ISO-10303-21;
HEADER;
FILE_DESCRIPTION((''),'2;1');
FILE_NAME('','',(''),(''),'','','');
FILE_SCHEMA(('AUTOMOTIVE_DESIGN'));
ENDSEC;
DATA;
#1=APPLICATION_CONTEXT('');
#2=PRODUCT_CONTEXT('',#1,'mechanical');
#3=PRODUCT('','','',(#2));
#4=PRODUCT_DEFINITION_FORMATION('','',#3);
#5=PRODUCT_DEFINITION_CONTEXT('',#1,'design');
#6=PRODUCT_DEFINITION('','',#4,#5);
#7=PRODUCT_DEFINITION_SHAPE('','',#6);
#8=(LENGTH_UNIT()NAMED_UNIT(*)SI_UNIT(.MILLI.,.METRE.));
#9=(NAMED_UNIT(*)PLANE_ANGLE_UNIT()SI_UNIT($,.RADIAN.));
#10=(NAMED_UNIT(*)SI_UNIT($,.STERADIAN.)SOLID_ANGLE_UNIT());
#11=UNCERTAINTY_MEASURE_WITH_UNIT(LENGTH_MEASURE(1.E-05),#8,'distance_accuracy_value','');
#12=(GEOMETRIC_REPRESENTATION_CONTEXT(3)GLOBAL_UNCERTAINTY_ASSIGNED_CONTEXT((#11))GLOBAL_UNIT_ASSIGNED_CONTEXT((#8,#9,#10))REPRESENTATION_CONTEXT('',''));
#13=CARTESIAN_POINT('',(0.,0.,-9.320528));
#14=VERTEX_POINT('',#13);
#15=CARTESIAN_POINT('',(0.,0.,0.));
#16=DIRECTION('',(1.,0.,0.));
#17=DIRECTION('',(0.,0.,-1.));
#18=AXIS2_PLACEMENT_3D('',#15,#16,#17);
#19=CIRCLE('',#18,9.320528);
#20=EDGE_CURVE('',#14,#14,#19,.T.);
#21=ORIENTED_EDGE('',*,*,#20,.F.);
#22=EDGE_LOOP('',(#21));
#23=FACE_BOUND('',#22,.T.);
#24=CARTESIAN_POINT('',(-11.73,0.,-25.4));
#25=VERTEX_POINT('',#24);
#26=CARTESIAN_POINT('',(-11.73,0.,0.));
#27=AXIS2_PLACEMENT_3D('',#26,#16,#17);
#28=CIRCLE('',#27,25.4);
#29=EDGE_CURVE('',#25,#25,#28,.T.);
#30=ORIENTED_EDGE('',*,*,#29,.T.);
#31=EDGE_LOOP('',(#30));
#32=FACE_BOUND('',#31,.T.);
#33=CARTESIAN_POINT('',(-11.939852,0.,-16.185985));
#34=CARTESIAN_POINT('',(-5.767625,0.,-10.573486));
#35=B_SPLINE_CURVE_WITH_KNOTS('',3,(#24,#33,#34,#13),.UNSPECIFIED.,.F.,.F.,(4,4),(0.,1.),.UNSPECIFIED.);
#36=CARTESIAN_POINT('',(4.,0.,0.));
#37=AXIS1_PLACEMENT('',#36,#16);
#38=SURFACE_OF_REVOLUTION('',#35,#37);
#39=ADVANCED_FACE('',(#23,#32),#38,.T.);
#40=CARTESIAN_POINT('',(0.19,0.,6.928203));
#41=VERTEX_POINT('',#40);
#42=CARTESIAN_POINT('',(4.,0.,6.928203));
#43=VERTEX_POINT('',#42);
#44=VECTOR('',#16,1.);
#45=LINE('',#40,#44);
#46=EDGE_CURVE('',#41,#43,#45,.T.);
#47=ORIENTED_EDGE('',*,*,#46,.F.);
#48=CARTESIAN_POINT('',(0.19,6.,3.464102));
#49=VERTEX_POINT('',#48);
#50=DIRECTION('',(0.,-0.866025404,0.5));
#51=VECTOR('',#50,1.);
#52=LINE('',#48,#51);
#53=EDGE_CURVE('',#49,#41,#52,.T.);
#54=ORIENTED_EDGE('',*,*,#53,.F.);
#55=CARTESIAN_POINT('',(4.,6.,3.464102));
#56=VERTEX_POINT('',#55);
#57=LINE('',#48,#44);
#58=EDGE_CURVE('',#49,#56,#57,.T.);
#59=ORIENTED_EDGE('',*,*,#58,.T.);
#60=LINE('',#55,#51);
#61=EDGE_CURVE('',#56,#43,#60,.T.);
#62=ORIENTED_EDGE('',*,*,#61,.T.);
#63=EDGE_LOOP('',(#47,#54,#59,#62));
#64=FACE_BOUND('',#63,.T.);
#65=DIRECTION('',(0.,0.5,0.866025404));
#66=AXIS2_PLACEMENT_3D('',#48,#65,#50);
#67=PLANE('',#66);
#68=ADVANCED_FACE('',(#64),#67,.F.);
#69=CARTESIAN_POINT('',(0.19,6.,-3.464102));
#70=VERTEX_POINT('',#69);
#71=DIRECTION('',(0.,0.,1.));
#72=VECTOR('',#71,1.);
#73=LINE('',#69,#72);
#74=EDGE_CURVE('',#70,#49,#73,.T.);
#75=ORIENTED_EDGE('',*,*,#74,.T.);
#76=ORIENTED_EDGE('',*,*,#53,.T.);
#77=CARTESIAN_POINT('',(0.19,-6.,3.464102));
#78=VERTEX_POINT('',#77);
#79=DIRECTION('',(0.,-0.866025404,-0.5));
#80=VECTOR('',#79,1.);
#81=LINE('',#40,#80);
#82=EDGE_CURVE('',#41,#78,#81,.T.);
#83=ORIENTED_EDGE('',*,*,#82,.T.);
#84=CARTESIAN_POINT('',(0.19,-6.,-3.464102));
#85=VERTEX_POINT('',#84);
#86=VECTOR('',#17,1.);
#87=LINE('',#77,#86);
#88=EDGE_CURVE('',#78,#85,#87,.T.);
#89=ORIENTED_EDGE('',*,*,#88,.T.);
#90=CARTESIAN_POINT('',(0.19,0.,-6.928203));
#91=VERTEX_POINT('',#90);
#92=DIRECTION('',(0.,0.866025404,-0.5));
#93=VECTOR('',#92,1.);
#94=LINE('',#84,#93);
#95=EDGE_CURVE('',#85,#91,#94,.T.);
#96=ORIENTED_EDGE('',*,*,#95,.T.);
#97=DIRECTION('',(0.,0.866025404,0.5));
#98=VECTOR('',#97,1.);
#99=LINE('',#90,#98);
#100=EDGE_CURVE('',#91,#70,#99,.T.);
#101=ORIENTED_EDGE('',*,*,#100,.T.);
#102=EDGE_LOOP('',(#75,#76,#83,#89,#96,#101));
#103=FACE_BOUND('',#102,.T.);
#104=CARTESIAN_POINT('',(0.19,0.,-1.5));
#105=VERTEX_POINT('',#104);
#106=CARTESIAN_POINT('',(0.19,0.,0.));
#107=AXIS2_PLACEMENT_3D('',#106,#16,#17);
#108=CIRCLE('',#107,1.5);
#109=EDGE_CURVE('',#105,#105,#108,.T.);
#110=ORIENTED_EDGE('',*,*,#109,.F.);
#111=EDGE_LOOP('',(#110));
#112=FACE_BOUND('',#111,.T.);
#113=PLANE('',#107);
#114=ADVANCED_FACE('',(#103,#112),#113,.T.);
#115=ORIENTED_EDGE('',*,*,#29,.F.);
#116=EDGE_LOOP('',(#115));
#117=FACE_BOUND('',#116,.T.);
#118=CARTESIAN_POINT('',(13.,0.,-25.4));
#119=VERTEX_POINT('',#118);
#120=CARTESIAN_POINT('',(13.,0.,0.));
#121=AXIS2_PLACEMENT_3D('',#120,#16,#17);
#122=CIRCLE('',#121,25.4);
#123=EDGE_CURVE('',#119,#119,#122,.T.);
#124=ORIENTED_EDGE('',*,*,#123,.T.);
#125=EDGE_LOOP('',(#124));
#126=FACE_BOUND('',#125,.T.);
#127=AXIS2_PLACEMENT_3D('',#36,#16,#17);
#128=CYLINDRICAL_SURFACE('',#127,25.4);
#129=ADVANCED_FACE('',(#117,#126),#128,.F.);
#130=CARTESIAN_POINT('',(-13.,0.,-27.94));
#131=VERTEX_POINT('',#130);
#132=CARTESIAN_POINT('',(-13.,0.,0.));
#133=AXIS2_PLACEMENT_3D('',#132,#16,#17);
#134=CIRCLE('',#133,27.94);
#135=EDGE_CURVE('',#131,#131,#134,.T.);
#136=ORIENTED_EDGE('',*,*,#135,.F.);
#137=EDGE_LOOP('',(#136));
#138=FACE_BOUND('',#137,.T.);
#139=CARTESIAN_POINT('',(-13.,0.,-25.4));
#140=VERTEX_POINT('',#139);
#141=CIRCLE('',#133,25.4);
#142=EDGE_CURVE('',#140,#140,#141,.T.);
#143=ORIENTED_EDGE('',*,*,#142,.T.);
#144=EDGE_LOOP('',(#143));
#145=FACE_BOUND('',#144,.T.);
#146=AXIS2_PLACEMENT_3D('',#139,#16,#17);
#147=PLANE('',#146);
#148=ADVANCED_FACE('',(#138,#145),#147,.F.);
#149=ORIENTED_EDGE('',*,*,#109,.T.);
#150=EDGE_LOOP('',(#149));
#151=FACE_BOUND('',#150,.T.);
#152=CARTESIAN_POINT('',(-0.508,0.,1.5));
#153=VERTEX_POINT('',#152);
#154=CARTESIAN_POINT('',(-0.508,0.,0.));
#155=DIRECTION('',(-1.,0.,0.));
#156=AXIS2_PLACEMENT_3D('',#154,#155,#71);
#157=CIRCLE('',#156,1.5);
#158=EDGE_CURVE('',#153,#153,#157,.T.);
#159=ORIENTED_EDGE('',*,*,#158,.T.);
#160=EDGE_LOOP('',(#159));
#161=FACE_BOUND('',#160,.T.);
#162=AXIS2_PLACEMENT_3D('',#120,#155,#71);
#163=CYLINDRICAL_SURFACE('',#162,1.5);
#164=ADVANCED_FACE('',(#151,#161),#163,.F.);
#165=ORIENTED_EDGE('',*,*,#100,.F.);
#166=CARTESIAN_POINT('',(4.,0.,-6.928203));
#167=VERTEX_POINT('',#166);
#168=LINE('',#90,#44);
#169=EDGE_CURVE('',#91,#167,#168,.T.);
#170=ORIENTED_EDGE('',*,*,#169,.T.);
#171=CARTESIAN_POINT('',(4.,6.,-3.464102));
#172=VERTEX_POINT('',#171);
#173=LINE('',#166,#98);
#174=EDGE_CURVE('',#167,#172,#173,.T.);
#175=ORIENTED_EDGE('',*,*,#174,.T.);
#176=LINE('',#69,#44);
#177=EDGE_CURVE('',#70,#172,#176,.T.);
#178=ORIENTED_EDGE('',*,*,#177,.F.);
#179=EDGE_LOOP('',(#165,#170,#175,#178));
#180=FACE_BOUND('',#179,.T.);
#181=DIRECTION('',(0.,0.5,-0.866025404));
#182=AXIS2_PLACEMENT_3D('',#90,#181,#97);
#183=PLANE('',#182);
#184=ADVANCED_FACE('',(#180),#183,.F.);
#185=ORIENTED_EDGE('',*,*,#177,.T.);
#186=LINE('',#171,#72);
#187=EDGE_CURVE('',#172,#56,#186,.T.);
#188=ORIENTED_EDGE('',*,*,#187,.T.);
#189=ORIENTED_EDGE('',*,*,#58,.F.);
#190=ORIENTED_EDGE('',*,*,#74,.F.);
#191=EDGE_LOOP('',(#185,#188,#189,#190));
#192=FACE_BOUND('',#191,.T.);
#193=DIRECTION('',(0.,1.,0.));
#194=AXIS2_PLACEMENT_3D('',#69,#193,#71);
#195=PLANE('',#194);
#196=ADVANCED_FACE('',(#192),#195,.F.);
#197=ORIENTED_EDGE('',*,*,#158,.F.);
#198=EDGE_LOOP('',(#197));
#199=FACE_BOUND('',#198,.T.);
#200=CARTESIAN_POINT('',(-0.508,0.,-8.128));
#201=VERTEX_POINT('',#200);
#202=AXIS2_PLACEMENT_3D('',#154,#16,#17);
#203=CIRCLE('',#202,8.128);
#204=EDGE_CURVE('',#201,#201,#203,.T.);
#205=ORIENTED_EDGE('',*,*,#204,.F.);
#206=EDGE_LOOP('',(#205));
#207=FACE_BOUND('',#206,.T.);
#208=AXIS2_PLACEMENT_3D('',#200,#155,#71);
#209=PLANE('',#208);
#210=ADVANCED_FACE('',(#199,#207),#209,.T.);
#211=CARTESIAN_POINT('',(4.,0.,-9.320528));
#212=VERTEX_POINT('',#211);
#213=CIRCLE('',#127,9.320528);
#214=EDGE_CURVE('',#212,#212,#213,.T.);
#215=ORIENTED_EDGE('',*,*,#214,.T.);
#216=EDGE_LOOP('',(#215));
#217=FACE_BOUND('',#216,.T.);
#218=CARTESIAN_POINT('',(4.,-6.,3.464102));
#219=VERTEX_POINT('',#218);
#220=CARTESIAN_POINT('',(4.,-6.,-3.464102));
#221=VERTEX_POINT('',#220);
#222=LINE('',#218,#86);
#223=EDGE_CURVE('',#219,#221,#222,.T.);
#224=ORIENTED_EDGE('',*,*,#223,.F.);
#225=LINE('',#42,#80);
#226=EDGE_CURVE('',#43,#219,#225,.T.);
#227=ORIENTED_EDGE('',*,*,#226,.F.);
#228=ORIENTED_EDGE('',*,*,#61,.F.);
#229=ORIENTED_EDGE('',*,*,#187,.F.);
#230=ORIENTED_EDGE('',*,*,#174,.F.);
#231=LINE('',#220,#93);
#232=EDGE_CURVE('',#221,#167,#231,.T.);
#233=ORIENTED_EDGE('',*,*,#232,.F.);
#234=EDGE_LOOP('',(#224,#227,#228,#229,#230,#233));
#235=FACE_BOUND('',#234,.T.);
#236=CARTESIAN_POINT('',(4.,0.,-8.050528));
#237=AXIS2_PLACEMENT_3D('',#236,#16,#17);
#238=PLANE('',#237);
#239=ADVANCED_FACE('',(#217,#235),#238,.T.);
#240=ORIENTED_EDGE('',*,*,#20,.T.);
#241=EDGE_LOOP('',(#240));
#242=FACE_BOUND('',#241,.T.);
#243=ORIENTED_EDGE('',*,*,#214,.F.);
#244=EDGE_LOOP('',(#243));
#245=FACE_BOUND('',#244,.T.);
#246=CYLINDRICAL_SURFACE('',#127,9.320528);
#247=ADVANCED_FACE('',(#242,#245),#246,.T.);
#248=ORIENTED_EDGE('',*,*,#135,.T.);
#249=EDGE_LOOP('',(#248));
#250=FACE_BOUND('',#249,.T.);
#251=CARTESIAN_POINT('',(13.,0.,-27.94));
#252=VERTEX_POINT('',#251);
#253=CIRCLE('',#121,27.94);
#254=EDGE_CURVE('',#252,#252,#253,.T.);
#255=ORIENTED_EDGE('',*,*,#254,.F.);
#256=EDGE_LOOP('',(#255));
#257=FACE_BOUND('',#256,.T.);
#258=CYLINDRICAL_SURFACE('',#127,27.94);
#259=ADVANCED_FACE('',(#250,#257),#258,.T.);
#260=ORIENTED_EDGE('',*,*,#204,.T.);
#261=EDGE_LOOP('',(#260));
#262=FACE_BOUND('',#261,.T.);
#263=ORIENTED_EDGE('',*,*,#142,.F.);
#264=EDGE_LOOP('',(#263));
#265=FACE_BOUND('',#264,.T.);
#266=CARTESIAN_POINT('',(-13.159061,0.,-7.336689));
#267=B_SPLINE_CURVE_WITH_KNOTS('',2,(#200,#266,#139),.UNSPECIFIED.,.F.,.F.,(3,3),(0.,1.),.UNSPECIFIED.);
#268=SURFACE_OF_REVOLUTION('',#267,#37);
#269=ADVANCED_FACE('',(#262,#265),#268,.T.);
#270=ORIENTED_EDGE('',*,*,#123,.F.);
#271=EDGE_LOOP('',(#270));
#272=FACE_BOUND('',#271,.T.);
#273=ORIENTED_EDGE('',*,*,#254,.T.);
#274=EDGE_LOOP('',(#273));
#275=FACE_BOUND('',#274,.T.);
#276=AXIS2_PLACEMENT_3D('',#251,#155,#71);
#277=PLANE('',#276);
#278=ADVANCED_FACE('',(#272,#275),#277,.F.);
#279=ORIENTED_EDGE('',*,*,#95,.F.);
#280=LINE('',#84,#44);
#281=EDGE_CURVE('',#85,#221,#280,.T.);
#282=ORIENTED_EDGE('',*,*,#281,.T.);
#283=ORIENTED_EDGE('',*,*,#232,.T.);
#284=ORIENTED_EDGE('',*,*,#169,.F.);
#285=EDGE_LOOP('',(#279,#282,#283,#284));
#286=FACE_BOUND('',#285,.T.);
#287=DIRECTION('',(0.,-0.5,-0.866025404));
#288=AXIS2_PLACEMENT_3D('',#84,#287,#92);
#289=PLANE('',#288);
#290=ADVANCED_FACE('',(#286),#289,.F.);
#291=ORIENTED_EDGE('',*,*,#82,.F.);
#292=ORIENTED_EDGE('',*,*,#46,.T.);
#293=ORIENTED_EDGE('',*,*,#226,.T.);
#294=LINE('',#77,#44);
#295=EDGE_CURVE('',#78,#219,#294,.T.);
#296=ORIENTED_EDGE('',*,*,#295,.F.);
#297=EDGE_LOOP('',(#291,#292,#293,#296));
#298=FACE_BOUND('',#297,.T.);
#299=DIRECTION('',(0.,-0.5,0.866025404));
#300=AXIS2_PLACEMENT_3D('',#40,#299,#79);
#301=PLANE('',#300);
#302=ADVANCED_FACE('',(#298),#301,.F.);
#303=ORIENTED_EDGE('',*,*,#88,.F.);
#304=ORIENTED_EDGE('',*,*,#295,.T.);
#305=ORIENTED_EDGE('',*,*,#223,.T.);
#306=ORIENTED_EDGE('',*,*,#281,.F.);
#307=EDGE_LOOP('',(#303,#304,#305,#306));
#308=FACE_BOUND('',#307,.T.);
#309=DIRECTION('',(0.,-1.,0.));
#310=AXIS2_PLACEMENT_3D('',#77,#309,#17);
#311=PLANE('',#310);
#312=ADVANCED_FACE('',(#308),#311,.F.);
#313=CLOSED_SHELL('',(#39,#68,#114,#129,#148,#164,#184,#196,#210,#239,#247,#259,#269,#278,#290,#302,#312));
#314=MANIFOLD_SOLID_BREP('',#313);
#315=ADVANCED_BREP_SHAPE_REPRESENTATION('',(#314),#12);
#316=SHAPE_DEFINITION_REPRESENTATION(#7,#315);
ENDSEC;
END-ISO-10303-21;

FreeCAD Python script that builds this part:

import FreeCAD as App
import Part
import Sketcher

V = App.Vector
Q = App.Units.Quantity


def add_polygon(sketch, points):
    """Adds a closed chain of lines whose ends are joined by coincident constraints."""
    first, n = sketch.GeometryCount, len(points)
    for a, b in zip(points, points[1:] + points[:1]):
        sketch.addGeometry(Part.LineSegment(App.Vector(*a, 0), App.Vector(*b, 0)), False)
    for i in range(n):
        sketch.addConstraint(Sketcher.Constraint("Coincident", first + i, 2, first + (i + 1) % n, 1))

doc = App.newDocument("Part")
body = doc.addObject("PartDesign::Body", "Body")

# Sketch on XZ plane
sketch1 = body.newObject("Sketcher::SketchObject", "Sketch")
sketch1.AttachmentSupport = (doc.getObject("XZ_Plane"), [""])
sketch1.MapMode = "FlatFace"
sketch1.addGeometry([
    Part.LineSegment(V(4, -9.320528, 0), V(0, -9.320528, 0)),  # 0
    Part.BSplineCurve([V(-11.73, -25.4, 0), V(-11.939852, -16.185985, 0), V(-5.767625, -10.573486, 0), V(0, -9.320528, 0)], [4, 4], [0, 1], False, 3, [1, 1, 1, 1], False),  # 1
    Part.LineSegment(V(-11.73, -25.4, 0), V(13, -25.4, 0)),  # 2
    Part.LineSegment(V(13, -25.4, 0), V(13, -27.94, 0)),  # 3
    Part.LineSegment(V(13, -27.94, 0), V(-13, -27.94, 0)),  # 4
    Part.LineSegment(V(-13, -27.94, 0), V(-13, -25.4, 0)),  # 5
    Part.BSplineCurve([V(-0.508, -8.128, 0), V(-13.159061, -7.336689, 0), V(-13, -25.4, 0)], [3, 3], [0, 1], False, 2, [1, 1, 1], False),  # 6
    Part.LineSegment(V(-0.508, -8.128, 0), V(-0.508, 0, 0)),  # 7
    Part.LineSegment(V(-0.508, 0, 0), V(4, 0, 0)),  # 8
    Part.LineSegment(V(4, 0, 0), V(4, -9.320528, 0)),  # 9
], False)
sketch1.addConstraint([
    Sketcher.Constraint("Block", 1),
    Sketcher.Constraint("Block", 6),
    Sketcher.Constraint("Coincident", 0, 2, 1, 2),
    Sketcher.Constraint("Coincident", 1, 1, 2, 1),
    Sketcher.Constraint("Coincident", 2, 2, 3, 1),
    Sketcher.Constraint("Coincident", 3, 2, 4, 1),
    Sketcher.Constraint("Coincident", 4, 2, 5, 1),
    Sketcher.Constraint("Coincident", 5, 2, 6, 2),
    Sketcher.Constraint("Coincident", 6, 1, 7, 1),
    Sketcher.Constraint("Coincident", 7, 2, 8, 1),
    Sketcher.Constraint("Coincident", 8, 2, 9, 1),
    Sketcher.Constraint("Coincident", 9, 2, 0, 1),
    Sketcher.Constraint("Horizontal", 0),
    Sketcher.Constraint("Horizontal", 2),
    Sketcher.Constraint("Vertical", 3),
    Sketcher.Constraint("Horizontal", 4),
    Sketcher.Constraint("Vertical", 5),
    Sketcher.Constraint("Vertical", 7),
    Sketcher.Constraint("Horizontal", 8),
    Sketcher.Constraint("Vertical", 9),
    Sketcher.Constraint("PointOnObject", 7, 2, -1),
    Sketcher.Constraint("DistanceX", 0, 2, 0, 1, 4.0),
    Sketcher.Constraint("DistanceX", 4, 2, 4, 1, 26.0),
    Sketcher.Constraint("DistanceY", 3, 2, 3, 1, 2.54),
])
revolution = body.newObject("PartDesign::Revolution", "Revolution")
revolution.Profile = sketch1
revolution.ReferenceAxis = (sketch1, ["H_Axis"])
revolution.Angle = 360

# Sketch on YZ plane
sketch2 = body.newObject("Sketcher::SketchObject", "Sketch001")
sketch2.AttachmentSupport = (doc.getObject("YZ_Plane"), [""])
sketch2.MapMode = "FlatFace"
sketch2.AttachmentOffset = App.Placement(V(0, 0, 4), App.Rotation())
add_polygon(sketch2, [(0, -7), (6, -3), (6, 3), (0, 7), (-6, 3), (-6, -3)])  # lines 0-5
sketch2.addConstraint([
    Sketcher.Constraint("Vertical", 1),
    Sketcher.Constraint("Vertical", 4),
    Sketcher.Constraint("Symmetric", 0, 2, 3, 2, -1, 1),
    Sketcher.Constraint("Symmetric", 2, 2, 5, 2, -1, 1),
    Sketcher.Constraint("PointOnObject", 2, 2, -2),
    Sketcher.Constraint("Parallel", 2, 5),
    Sketcher.Constraint("Horizontal", 1, 2, 3, 2),
    Sketcher.Constraint("Angle", 0, Q("30 deg")),
    Sketcher.Constraint("DistanceX", -1, 1, 0, 2, 6.0),
    Sketcher.Constraint("DistanceY", 0, 2, -1, 1, 3.464102),
])
pocket1 = body.newObject("PartDesign::Pocket", "Pocket")
pocket1.Profile = sketch2
pocket1.Length = 3.81

# Sketch on YZ plane
sketch3 = body.newObject("Sketcher::SketchObject", "Sketch002")
sketch3.AttachmentSupport = (doc.getObject("YZ_Plane"), [""])
sketch3.MapMode = "FlatFace"
sketch3.AttachmentOffset = App.Placement(V(0, 0, -0.508), App.Rotation())
sketch3.addGeometry(Part.Circle(V(0, 0, 0), V(0, 0, 1), 1.5), False)
sketch3.addConstraint([
    Sketcher.Constraint("Coincident", 0, 3, -1, 1),
    Sketcher.Constraint("Diameter", 0, 3.0),
])
pocket2 = body.newObject("PartDesign::Pocket", "Pocket001")
pocket2.Profile = sketch3
pocket2.Type = "ThroughAll"
pocket2.Reversed = True

doc.recompute()
